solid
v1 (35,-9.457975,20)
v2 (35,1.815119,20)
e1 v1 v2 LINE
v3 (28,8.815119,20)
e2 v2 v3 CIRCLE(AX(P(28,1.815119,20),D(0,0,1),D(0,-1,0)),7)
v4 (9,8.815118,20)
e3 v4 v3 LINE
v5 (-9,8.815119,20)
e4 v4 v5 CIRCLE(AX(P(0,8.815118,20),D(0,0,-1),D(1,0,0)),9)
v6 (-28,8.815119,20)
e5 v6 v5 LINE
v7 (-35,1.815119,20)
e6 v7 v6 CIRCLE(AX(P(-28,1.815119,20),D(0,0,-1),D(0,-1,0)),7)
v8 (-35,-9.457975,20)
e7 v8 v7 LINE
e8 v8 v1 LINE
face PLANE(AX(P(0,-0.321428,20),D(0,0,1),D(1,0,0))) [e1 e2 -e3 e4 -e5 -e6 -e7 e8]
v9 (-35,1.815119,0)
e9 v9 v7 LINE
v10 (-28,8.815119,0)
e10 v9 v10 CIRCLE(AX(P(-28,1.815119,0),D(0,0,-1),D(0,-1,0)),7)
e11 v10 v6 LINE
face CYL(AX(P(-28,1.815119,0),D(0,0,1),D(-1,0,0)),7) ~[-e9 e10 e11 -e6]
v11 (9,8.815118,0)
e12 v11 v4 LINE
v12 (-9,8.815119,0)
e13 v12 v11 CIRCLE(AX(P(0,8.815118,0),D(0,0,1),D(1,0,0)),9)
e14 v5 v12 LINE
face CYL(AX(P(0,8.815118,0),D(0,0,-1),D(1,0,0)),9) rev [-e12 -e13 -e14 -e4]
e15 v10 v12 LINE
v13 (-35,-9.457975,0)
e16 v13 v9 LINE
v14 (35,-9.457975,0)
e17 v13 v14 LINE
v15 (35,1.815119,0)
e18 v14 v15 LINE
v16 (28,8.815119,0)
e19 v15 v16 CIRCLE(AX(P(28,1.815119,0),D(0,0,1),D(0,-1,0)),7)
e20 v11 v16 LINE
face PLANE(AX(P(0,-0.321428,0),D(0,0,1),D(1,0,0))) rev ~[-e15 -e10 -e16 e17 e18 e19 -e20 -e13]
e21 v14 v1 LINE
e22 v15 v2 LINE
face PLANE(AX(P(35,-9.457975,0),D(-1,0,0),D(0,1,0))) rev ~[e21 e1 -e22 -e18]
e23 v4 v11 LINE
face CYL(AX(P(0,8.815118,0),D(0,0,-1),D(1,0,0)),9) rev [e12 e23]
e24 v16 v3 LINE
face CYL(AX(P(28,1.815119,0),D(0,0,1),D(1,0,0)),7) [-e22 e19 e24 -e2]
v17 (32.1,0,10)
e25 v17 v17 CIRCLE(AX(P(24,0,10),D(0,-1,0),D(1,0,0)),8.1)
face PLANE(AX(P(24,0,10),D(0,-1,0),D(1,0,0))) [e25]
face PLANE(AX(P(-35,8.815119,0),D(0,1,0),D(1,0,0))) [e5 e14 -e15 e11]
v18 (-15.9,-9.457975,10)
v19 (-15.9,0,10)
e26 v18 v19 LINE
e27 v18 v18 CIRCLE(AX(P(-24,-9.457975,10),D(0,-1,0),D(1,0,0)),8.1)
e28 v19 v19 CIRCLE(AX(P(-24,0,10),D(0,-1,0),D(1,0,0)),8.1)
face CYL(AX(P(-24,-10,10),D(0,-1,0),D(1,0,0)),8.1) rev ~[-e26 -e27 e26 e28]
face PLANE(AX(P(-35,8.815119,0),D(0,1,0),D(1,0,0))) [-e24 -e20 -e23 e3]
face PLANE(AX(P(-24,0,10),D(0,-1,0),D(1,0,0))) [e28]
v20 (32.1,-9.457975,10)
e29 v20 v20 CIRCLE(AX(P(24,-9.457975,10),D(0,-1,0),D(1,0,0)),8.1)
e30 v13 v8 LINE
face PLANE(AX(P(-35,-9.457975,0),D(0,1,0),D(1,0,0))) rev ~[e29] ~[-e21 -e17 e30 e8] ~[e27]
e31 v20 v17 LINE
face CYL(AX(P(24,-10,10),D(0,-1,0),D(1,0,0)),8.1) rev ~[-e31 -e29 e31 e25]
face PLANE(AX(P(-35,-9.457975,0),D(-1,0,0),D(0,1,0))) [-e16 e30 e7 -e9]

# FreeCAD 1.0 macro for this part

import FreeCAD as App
import Part
import Sketcher
from FreeCAD import Vector
Q = App.Units.Quantity


def edges_at(feature, points):
    """Names of the edges that pass closest to the given points."""
    edges = feature.Shape.Edges
    near = lambda p: min(range(len(edges)), key=lambda i: edges[i].distToShape(Part.Vertex(*p))[0])
    return sorted({f"Edge{near(p) + 1}" for p in points})

doc = App.newDocument("Part")
body = doc.addObject("PartDesign::Body", "Body")

# Sketch on XY plane
sketch1 = body.newObject("Sketcher::SketchObject", "Sketch")
sketch1.AttachmentSupport = (doc.getObject("XY_Plane"), [""])
sketch1.MapMode = "FlatFace"
sketch1.addGeometry([
    Part.LineSegment(Vector(-35, 9, 0), Vector(-35, -9, 0)),
    Part.LineSegment(Vector(-35, -9, 0), Vector(35, -9, 0)),
    Part.LineSegment(Vector(35, -9, 0), Vector(35, 9, 0)),
    Part.LineSegment(Vector(35, 9, 0), Vector(-35, 9, 0)),
], False)
sketch1.addConstraint([
    Sketcher.Constraint("Coincident", 0, 2, 1, 1),
    Sketcher.Constraint("Coincident", 1, 2, 2, 1),
    Sketcher.Constraint("Coincident", 2, 2, 3, 1),
    Sketcher.Constraint("Coincident", 3, 2, 0, 1),
    Sketcher.Constraint("Vertical", 0),
    Sketcher.Constraint("Horizontal", 1),
    Sketcher.Constraint("Vertical", 2),
    Sketcher.Constraint("Horizontal", 3),
    Sketcher.Constraint("DistanceX", 1, 1, 1, 2, Q("70 mm")),
    Sketcher.Constraint("DistanceX", 0, 2, -1, 1, Q("35 mm")),
    Sketcher.Constraint("DistanceY", 0, 2, 0, 1, Q("18.273093 mm")),
    Sketcher.Constraint("DistanceY", -1, 1, 2, 2, Q("8.815119 mm")),
])
pad1 = body.newObject("PartDesign::Pad", "Pad")
pad1.Profile = sketch1
pad1.Length = 20

# Sketch on XZ plane
sketch2 = body.newObject("Sketcher::SketchObject", "Sketch001")
sketch2.AttachmentSupport = (doc.getObject("XZ_Plane"), [""])
sketch2.MapMode = "FlatFace"
sketch2.AttachmentOffset = App.Placement(Vector(0, 0, 10), App.Rotation())
sketch2.addGeometry([
    Part.Circle(Vector(-24, 10, 0), Vector(0, 0, 1), 8),
    Part.Circle(Vector(24, 10, 0), Vector(0, 0, 1), 8),
], False)
sketch2.addConstraint([
    Sketcher.Constraint("Equal", 0, 1),
    Sketcher.Constraint("Symmetric", 0, 3, 1, 3, -2),
    Sketcher.Constraint("Diameter", 0, Q("16.2 mm")),
    Sketcher.Constraint("DistanceX", 0, 3, -1, 1, Q("24 mm")),
    Sketcher.Constraint("DistanceY", -1, 1, 0, 3, Q("10 mm")),
])
pocket1 = body.newObject("PartDesign::Pocket", "Pocket")
pocket1.Profile = sketch2
pocket1.Length = 10

# Sketch on XY plane
sketch3 = body.newObject("Sketcher::SketchObject", "Sketch002")
sketch3.AttachmentSupport = (doc.getObject("XY_Plane"), [""])
sketch3.MapMode = "FlatFace"
sketch3.addGeometry(Part.Circle(Vector(0, 9, 0), Vector(0, 0, 1), 9), False)
sketch3.addConstraint([
    Sketcher.Constraint("PointOnObject", 0, 3, -2),
    Sketcher.Constraint("Diameter", 0, Q("18 mm")),
    Sketcher.Constraint("DistanceY", -1, 1, 0, 3, Q("8.815118 mm")),
])
pocket2 = body.newObject("PartDesign::Pocket", "Pocket001")
pocket2.Profile = sketch3
pocket2.Length = 25
pocket2.Reversed = True
doc.recompute()

fillet = body.newObject("PartDesign::Fillet", "Fillet")
fillet.Base = (pocket2, edges_at(pocket2, [(35, 8.815, 10), (-35, 8.815, 10)]))
fillet.Radius = 7

doc.recompute()
